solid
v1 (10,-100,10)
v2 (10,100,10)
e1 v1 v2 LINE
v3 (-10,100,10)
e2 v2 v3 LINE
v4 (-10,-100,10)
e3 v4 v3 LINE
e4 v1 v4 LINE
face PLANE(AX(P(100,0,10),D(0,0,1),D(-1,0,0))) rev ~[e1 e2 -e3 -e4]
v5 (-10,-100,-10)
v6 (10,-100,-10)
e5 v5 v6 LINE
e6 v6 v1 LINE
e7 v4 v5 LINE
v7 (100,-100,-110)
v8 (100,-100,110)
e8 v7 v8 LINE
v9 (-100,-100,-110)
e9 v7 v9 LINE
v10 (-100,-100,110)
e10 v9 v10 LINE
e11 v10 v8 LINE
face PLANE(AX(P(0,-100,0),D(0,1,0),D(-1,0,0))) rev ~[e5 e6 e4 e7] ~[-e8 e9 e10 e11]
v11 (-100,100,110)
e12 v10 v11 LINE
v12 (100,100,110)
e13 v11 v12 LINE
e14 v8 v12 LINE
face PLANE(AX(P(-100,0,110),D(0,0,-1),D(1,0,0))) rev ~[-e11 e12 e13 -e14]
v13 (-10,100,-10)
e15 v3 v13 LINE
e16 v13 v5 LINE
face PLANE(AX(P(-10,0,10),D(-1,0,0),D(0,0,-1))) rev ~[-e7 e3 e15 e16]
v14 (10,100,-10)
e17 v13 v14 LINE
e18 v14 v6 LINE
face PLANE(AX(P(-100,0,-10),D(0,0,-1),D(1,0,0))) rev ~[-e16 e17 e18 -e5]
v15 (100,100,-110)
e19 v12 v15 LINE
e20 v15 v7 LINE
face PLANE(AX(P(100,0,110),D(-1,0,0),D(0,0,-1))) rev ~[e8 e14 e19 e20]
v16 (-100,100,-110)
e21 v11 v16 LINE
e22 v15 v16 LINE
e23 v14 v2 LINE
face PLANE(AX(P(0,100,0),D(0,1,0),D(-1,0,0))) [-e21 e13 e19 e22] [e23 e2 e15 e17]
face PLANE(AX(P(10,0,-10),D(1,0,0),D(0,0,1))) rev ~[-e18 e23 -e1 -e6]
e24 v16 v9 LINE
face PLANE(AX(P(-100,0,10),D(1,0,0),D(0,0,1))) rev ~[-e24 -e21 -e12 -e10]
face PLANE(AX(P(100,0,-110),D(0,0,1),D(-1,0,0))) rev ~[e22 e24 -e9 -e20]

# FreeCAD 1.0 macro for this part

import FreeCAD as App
import Part
import Sketcher

V = App.Vector


def add_polygon(sketch, points):
    """Adds a closed chain of lines whose ends are joined by coincident constraints."""
    first, n = sketch.GeometryCount, len(points)
    for a, b in zip(points, points[1:] + points[:1]):
        sketch.addGeometry(Part.LineSegment(App.Vector(*a, 0), App.Vector(*b, 0)), False)
    for i in range(n):
        sketch.addConstraint(Sketcher.Constraint("Coincident", first + i, 2, first + (i + 1) % n, 1))

doc = App.newDocument("Part")
params = doc.addObject("Spreadsheet::Sheet", "Params")
for row, (alias, value) in enumerate([
    ("sketch1_width", "200 mm"),
    ("sketch1_height", "100 mm"),
    ("pad1_length", "200 mm"),
    ("sketch2_width", "90 mm"),
    ("sketch2_height", "20 mm"),
    ("pad2_length", "200 mm"),
], start=1):
    params.set(f"A{row}", alias)
    params.set(f"B{row}", "=" + value)
    params.setAlias(f"B{row}", alias)

body = doc.addObject("PartDesign::Body", "Body")
body.AllowCompound = True

# Sketch on XZ plane
sketch1 = body.newObject("Sketcher::SketchObject", "Sketch")
sketch1.AttachmentSupport = (doc.getObject("XZ_Plane"), [""])
sketch1.MapMode = "FlatFace"
add_polygon(sketch1, [(-100, 10), (-100, 110), (100, 110), (100, 10)])  # lines 0-3
add_polygon(sketch1, [(-100, -110), (-100, -10), (100, -10), (100, -110)])  # lines 4-7
sketch1.addConstraint(Sketcher.Constraint("Vertical", 0))
sketch1.addConstraint(Sketcher.Constraint("Horizontal", 1))
sketch1.addConstraint(Sketcher.Constraint("Vertical", 2))
sketch1.addConstraint(Sketcher.Constraint("Horizontal", 3))
sketch1.addConstraint(Sketcher.Constraint("Vertical", 4))
sketch1.addConstraint(Sketcher.Constraint("Horizontal", 5))
sketch1.addConstraint(Sketcher.Constraint("Vertical", 6))
sketch1.addConstraint(Sketcher.Constraint("Horizontal", 7))
sketch1.addConstraint(Sketcher.Constraint("Symmetric", 2, 2, 4, 2, -1, 1))
sketch1.addConstraint(Sketcher.Constraint("Symmetric", 0, 2, 6, 2, -1, 1))
sketch1.addConstraint(Sketcher.Constraint("Vertical", 3, 2, 4, 2))
sketch1.addConstraint(Sketcher.Constraint("DistanceX", 1, 1, 1, 2, 200.0))
sketch1.addConstraint(Sketcher.Constraint("DistanceY", 0, 1, 0, 2, 100.0))
sketch1.addConstraint(Sketcher.Constraint("DistanceY", -1, 1, 0, 2, 110.0))
sketch1.setExpression("Constraints[19]", "Params.sketch1_width")
sketch1.setExpression("Constraints[20]", "Params.sketch1_height")
pad1 = body.newObject("PartDesign::Pad", "Pad")
pad1.Profile = sketch1
pad1.setExpression("Length", "Params.pad1_length")
pad1.Midplane = True

# Sketch on XZ plane
sketch2 = body.newObject("Sketcher::SketchObject", "Sketch001")
sketch2.AttachmentSupport = (doc.getObject("XZ_Plane"), [""])
sketch2.MapMode = "FlatFace"
add_polygon(sketch2, [(-100, -10), (-100, 10), (-10, 10), (-10, -10)])  # lines 0-3
add_polygon(sketch2, [(10, -10), (10, 10), (100, 10), (100, -10)])  # lines 4-7
sketch2.addConstraint(Sketcher.Constraint("Vertical", 0))
sketch2.addConstraint(Sketcher.Constraint("Horizontal", 1))
sketch2.addConstraint(Sketcher.Constraint("Vertical", 2))
sketch2.addConstraint(Sketcher.Constraint("Horizontal", 3))
sketch2.addConstraint(Sketcher.Constraint("Vertical", 4))
sketch2.addConstraint(Sketcher.Constraint("Horizontal", 5))
sketch2.addConstraint(Sketcher.Constraint("Vertical", 6))
sketch2.addConstraint(Sketcher.Constraint("Horizontal", 7))
sketch2.addConstraint(Sketcher.Constraint("Symmetric", 2, 2, 4, 2, -1, 1))
sketch2.addConstraint(Sketcher.Constraint("Symmetric", 0, 2, 6, 2, -1, 1))
sketch2.addConstraint(Sketcher.Constraint("Horizontal", 1, 2, 4, 2))
sketch2.addConstraint(Sketcher.Constraint("DistanceX", 1, 1, 1, 2, 90.0))
sketch2.addConstraint(Sketcher.Constraint("DistanceY", 0, 1, 0, 2, 20.0))
sketch2.addConstraint(Sketcher.Constraint("DistanceX", 1, 2, 4, 2, 20.0))
sketch2.setExpression("Constraints[19]", "Params.sketch2_width")
sketch2.setExpression("Constraints[20]", "Params.sketch2_height")
pad2 = body.newObject("PartDesign::Pad", "Pad001")
pad2.Profile = sketch2
pad2.setExpression("Length", "Params.pad2_length")
pad2.Midplane = True

doc.recompute()
